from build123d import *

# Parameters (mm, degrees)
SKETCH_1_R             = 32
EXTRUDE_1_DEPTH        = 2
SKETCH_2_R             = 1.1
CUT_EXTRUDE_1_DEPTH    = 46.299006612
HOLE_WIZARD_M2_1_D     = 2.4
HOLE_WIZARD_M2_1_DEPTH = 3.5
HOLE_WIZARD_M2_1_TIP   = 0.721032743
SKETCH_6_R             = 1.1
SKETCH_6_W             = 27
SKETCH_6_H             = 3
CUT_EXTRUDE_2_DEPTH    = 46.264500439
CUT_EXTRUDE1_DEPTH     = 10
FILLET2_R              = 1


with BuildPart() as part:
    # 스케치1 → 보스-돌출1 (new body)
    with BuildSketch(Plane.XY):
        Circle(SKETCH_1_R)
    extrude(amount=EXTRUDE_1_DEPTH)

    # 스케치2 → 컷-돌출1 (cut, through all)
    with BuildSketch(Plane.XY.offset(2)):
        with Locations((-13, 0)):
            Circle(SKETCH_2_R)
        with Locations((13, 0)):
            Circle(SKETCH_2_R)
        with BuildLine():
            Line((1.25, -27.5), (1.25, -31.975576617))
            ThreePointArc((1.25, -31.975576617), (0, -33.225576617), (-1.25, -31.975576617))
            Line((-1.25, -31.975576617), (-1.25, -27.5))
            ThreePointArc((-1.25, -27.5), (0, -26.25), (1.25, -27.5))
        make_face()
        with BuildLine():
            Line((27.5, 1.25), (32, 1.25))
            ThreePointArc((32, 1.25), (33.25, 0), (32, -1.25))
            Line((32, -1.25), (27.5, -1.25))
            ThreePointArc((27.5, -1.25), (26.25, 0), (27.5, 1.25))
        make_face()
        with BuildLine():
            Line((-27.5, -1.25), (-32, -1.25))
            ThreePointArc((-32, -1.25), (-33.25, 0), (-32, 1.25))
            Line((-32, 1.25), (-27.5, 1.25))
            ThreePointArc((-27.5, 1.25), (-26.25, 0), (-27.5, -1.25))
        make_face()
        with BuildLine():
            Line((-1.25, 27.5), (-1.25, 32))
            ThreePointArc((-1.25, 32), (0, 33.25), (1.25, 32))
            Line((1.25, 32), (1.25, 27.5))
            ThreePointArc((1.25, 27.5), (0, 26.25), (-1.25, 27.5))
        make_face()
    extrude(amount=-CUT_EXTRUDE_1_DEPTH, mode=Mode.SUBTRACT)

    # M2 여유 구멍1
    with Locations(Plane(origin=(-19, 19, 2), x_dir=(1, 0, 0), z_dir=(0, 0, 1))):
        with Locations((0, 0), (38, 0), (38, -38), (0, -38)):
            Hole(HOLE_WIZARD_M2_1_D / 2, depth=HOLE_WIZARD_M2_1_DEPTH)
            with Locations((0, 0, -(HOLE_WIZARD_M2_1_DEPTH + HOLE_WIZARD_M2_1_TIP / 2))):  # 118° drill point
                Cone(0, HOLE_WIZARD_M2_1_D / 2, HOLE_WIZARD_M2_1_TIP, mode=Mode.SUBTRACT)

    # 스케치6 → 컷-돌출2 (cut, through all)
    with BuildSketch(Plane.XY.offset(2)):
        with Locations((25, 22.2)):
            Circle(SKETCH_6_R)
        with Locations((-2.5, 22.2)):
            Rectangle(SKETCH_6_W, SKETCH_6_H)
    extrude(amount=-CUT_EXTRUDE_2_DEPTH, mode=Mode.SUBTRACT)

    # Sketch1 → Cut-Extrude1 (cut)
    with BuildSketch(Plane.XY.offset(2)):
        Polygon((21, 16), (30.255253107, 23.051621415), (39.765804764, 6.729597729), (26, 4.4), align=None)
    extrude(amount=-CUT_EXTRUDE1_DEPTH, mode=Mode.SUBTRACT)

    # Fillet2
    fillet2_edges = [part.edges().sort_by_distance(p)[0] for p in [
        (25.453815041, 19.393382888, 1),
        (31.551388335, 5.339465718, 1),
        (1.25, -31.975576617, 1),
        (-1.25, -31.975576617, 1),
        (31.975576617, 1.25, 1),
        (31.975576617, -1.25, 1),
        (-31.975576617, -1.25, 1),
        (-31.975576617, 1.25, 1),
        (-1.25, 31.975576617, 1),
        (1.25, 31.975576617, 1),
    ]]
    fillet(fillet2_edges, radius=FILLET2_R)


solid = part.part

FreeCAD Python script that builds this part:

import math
import FreeCAD as App
import Part
import Sketcher
from FreeCAD import Vector


def edges_at(feature, points):
    """Names of the edges that pass closest to the given points."""
    edges = feature.Shape.Edges
    near = lambda p: min(range(len(edges)), key=lambda i: edges[i].distToShape(Part.Vertex(*p))[0])
    return sorted({f"Edge{near(p) + 1}" for p in points})


def add_polygon(sketch, points):
    """Adds a closed chain of lines whose ends are joined by coincident constraints."""
    first, n = sketch.GeometryCount, len(points)
    for a, b in zip(points, points[1:] + points[:1]):
        sketch.addGeometry(Part.LineSegment(App.Vector(*a, 0), App.Vector(*b, 0)), False)
    for i in range(n):
        sketch.addConstraint(Sketcher.Constraint("Coincident", first + i, 2, first + (i + 1) % n, 1))

doc = App.newDocument("Part")
body = doc.addObject("PartDesign::Body", "Body")

# Sketch on XY plane
sketch1 = doc.addObject("Sketcher::SketchObject", "Sketch")
body.addObject(sketch1)
sketch1.AttachmentSupport = (doc.XY_Plane, [""])
sketch1.MapMode = "FlatFace"
sketch1.addGeometry(Part.Circle(Vector(0, 0, 0), Vector(0, 0, 1), 32), False)
sketch1.addConstraint([
    Sketcher.Constraint("Coincident", 0, 3, -1, 1),
    Sketcher.Constraint("Diameter", 0, 64.0),
])
pad1 = doc.addObject("PartDesign::Pad", "Pad")
body.addObject(pad1)
pad1.Profile = sketch1
pad1.Length = 2

# Sketch on XY plane
sketch2 = doc.addObject("Sketcher::SketchObject", "Sketch001")
body.addObject(sketch2)
sketch2.AttachmentSupport = (doc.XY_Plane, [""])
sketch2.MapMode = "FlatFace"
sketch2.AttachmentOffset = App.Placement(Vector(0, 0, 2), App.Rotation())
sketch2.addGeometry([
    Part.Circle(Vector(-13, 0, 0), Vector(0, 0, 1), 1.1),  # 0
    Part.Circle(Vector(13, 0, 0), Vector(0, 0, 1), 1.1),  # 1
    Part.LineSegment(Vector(1.2, -32, 0), Vector(1.2, -27.5, 0)),  # 2
    Part.ArcOfCircle(Part.Circle(Vector(0, -27.5, 0), Vector(0, 0, 1), 1.2), math.radians(0), math.radians(180)),  # 3
    Part.LineSegment(Vector(-1.2, -27.5, 0), Vector(-1.2, -32, 0)),  # 4
    Part.ArcOfCircle(Part.Circle(Vector(0, -32, 0), Vector(0, 0, 1), 1.2), math.radians(180), math.radians(360)),  # 5
    Part.LineSegment(Vector(32, 1.2, 0), Vector(27.5, 1.2, 0)),  # 6
    Part.ArcOfCircle(Part.Circle(Vector(27.5, 0, 0), Vector(0, 0, 1), 1.2), math.radians(90), math.radians(270)),  # 7
    Part.LineSegment(Vector(27.5, -1.2, 0), Vector(32, -1.2, 0)),  # 8
    Part.ArcOfCircle(Part.Circle(Vector(32, 0, 0), Vector(0, 0, 1), 1.2), math.radians(-90), math.radians(90)),  # 9
    Part.LineSegment(Vector(-32, -1.2, 0), Vector(-27.5, -1.2, 0)),  # 10
    Part.ArcOfCircle(Part.Circle(Vector(-27.5, 0, 0), Vector(0, 0, 1), 1.2), math.radians(-90), math.radians(90)),  # 11
    Part.LineSegment(Vector(-27.5, 1.2, 0), Vector(-32, 1.2, 0)),  # 12
    Part.ArcOfCircle(Part.Circle(Vector(-32, 0, 0), Vector(0, 0, 1), 1.2), math.radians(90), math.radians(270)),  # 13
    Part.LineSegment(Vector(-1.2, 32, 0), Vector(-1.2, 27.5, 0)),  # 14
    Part.ArcOfCircle(Part.Circle(Vector(0, 27.5, 0), Vector(0, 0, 1), 1.2), math.radians(180), math.radians(360)),  # 15
    Part.LineSegment(Vector(1.2, 27.5, 0), Vector(1.2, 32, 0)),  # 16
    Part.ArcOfCircle(Part.Circle(Vector(0, 32, 0), Vector(0, 0, 1), 1.2), math.radians(0), math.radians(180)),  # 17
], False)
sketch2.addConstraint([
    Sketcher.Constraint("Tangent", 2, 2, 3, 1),
    Sketcher.Constraint("Tangent", 3, 2, 4, 1),
    Sketcher.Constraint("Tangent", 4, 2, 5, 1),
    Sketcher.Constraint("Tangent", 5, 2, 2, 1),
    Sketcher.Constraint("Tangent", 6, 2, 7, 1),
    Sketcher.Constraint("Tangent", 7, 2, 8, 1),
    Sketcher.Constraint("Tangent", 8, 2, 9, 1),
    Sketcher.Constraint("Tangent", 9, 2, 6, 1),
    Sketcher.Constraint("Tangent", 10, 2, 11, 1),
    Sketcher.Constraint("Tangent", 11, 2, 12, 1),
    Sketcher.Constraint("Tangent", 12, 2, 13, 1),
    Sketcher.Constraint("Tangent", 13, 2, 10, 1),
    Sketcher.Constraint("Tangent", 14, 2, 15, 1),
    Sketcher.Constraint("Tangent", 15, 2, 16, 1),
    Sketcher.Constraint("Tangent", 16, 2, 17, 1),
    Sketcher.Constraint("Tangent", 17, 2, 14, 1),
    Sketcher.Constraint("Vertical", 2),
    Sketcher.Constraint("Vertical", 4),
    Sketcher.Constraint("Horizontal", 6),
    Sketcher.Constraint("Horizontal", 8),
    Sketcher.Constraint("Horizontal", 10),
    Sketcher.Constraint("Horizontal", 12),
    Sketcher.Constraint("Vertical", 14),
    Sketcher.Constraint("Vertical", 16),
    Sketcher.Constraint("Equal", 0, 1),
    Sketcher.Constraint("Equal", 5, 7),
    Sketcher.Constraint("Equal", 9, 11),
    Sketcher.Constraint("Equal", 13, 15),
    Sketcher.Constraint("Symmetric", 0, 3, 1, 3, -1, 1),
    Sketcher.Constraint("Symmetric", 7, 3, 11, 3, -1, 1),
    Sketcher.Constraint("Symmetric", 3, 3, 15, 3, -1, 1),
    Sketcher.Constraint("Symmetric", 9, 3, 13, 3, -2),
    Sketcher.Constraint("PointOnObject", 0, 3, -1),
    Sketcher.Constraint("PointOnObject", 3, 3, -2),
    Sketcher.Constraint("Equal", 12, 14),
    Sketcher.Constraint("Diameter", 0, 2.2),
    Sketcher.Constraint("Radius", 3, 1.25),
    Sketcher.Constraint("DistanceX", 6, 2, 6, 1, 4.5),
    Sketcher.Constraint("DistanceX", 0, 3, -1, 1, 13.0),
    Sketcher.Constraint("DistanceX", -1, 1, 9, 3, 32.0),
    Sketcher.Constraint("DistanceY", -1, 1, 17, 3, 32.0),
    Sketcher.Constraint("DistanceY", 2, 1, 2, 2, 4.475577),
])
pocket1 = doc.addObject("PartDesign::Pocket", "Pocket")
body.addObject(pocket1)
pocket1.Profile = sketch2
pocket1.Type = "ThroughAll"

# Sketch on XY plane
sketch3 = doc.addObject("Sketcher::SketchObject", "Sketch002")
body.addObject(sketch3)
sketch3.AttachmentSupport = (doc.XY_Plane, [""])
sketch3.MapMode = "FlatFace"
sketch3.AttachmentOffset = App.Placement(Vector(0, 0, 2), App.Rotation())
sketch3.addGeometry([
    Part.Circle(Vector(-19, 19, 0), Vector(0, 0, 1), 1.2),
    Part.Circle(Vector(19, 19, 0), Vector(0, 0, 1), 1.2),
    Part.Circle(Vector(19, -19, 0), Vector(0, 0, 1), 1.2),
    Part.Circle(Vector(-19, -19, 0), Vector(0, 0, 1), 1.2),
], False)
sketch3.addConstraint([
    Sketcher.Constraint("Equal", 0, 1),
    Sketcher.Constraint("Equal", 1, 2),
    Sketcher.Constraint("Equal", 2, 3),
    Sketcher.Constraint("Symmetric", 0, 3, 2, 3, -1, 1),
    Sketcher.Constraint("Symmetric", 1, 3, 3, 3, -1, 1),
    Sketcher.Constraint("Symmetric", 0, 3, 1, 3, -2),
    Sketcher.Constraint("Diameter", 0, 2.4),
    Sketcher.Constraint("DistanceX", 0, 3, -1, 1, 19.0),
    Sketcher.Constraint("DistanceY", -1, 1, 0, 3, 19.0),
])
doc.recompute()
hole = doc.addObject("PartDesign::Hole", "Hole")
body.addObject(hole)
hole.Profile = sketch3
hole.ThreadType = "None"
hole.Diameter = 2.4
hole.DepthType = "Dimension"
hole.Depth = 3.5
hole.DrillPoint = "Angled"
hole.DrillPointAngle = 118

# Sketch on XY plane
sketch4 = doc.addObject("Sketcher::SketchObject", "Sketch003")
body.addObject(sketch4)
sketch4.AttachmentSupport = (doc.XY_Plane, [""])
sketch4.MapMode = "FlatFace"
sketch4.AttachmentOffset = App.Placement(Vector(0, 0, 2), App.Rotation())
sketch4.addGeometry(Part.Circle(Vector(25, 22.2, 0), Vector(0, 0, 1), 1.1), False)  # 0
add_polygon(sketch4, [(-16, 23.7), (-16, 20.7), (11, 20.7), (11, 23.7)])  # lines 1-4
sketch4.addConstraint([
    Sketcher.Constraint("Vertical", 1),
    Sketcher.Constraint("Horizontal", 2),
    Sketcher.Constraint("Vertical", 3),
    Sketcher.Constraint("Horizontal", 4),
    Sketcher.Constraint("Diameter", 0, 2.2),
    Sketcher.Constraint("DistanceX", 2, 1, 2, 2, 27.0),
    Sketcher.Constraint("DistanceY", 1, 2, 1, 1, 3.0),
    Sketcher.Constraint("DistanceX", -1, 1, 0, 3, 25.0),
    Sketcher.Constraint("DistanceX", 1, 2, -1, 1, 16.0),
    Sketcher.Constraint("DistanceY", -1, 1, 0, 3, 22.2),
    Sketcher.Constraint("DistanceY", -1, 1, 1, 2, 20.7),
])
pocket2 = doc.addObject("PartDesign::Pocket", "Pocket001")
body.addObject(pocket2)
pocket2.Profile = sketch4
pocket2.Type = "ThroughAll"

# Sketch on XY plane
sketch5 = doc.addObject("Sketcher::SketchObject", "Sketch004")
body.addObject(sketch5)
sketch5.AttachmentSupport = (doc.XY_Plane, [""])
sketch5.MapMode = "FlatFace"
sketch5.AttachmentOffset = App.Placement(Vector(0, 0, 2), App.Rotation())
add_polygon(sketch5, [(30, 23), (21, 16), (26, 4), (40, 7)])  # lines 0-3
sketch5.addConstraint([
    Sketcher.Constraint("DistanceX", -1, 1, 0, 2, 21.0),
    Sketcher.Constraint("DistanceY", -1, 1, 0, 2, 16.0),
    Sketcher.Constraint("DistanceX", -1, 1, 1, 2, 26.0),
    Sketcher.Constraint("DistanceY", -1, 1, 1, 2, 4.4),
    Sketcher.Constraint("Distance", 0, 11.635509),
    Sketcher.Constraint("DistanceY", -1, 1, 3, 2, 23.051621),
    Sketcher.Constraint("DistanceX", 3, 2, 2, 2, 9.510552),
    Sketcher.Constraint("Distance", 2, 13.961533),
])
pocket3 = doc.addObject("PartDesign::Pocket", "Pocket002")
body.addObject(pocket3)
pocket3.Profile = sketch5
pocket3.Length = 10
doc.recompute()

fillet = doc.addObject("PartDesign::Fillet", "Fillet")
body.addObject(fillet)
fillet.Base = (pocket3, edges_at(pocket3, [
    (25.454, 19.393, 1),
    (31.551, 5.339, 1),
    (1.25, -31.976, 1),
    (-1.25, -31.976, 1),
    (31.976, 1.25, 1),
    (31.976, -1.25, 1),
    (-31.976, -1.25, 1),
    (-31.976, 1.25, 1),
    (-1.25, 31.976, 1),
    (1.25, 31.976, 1),
]))
fillet.Radius = 1

doc.recompute()
